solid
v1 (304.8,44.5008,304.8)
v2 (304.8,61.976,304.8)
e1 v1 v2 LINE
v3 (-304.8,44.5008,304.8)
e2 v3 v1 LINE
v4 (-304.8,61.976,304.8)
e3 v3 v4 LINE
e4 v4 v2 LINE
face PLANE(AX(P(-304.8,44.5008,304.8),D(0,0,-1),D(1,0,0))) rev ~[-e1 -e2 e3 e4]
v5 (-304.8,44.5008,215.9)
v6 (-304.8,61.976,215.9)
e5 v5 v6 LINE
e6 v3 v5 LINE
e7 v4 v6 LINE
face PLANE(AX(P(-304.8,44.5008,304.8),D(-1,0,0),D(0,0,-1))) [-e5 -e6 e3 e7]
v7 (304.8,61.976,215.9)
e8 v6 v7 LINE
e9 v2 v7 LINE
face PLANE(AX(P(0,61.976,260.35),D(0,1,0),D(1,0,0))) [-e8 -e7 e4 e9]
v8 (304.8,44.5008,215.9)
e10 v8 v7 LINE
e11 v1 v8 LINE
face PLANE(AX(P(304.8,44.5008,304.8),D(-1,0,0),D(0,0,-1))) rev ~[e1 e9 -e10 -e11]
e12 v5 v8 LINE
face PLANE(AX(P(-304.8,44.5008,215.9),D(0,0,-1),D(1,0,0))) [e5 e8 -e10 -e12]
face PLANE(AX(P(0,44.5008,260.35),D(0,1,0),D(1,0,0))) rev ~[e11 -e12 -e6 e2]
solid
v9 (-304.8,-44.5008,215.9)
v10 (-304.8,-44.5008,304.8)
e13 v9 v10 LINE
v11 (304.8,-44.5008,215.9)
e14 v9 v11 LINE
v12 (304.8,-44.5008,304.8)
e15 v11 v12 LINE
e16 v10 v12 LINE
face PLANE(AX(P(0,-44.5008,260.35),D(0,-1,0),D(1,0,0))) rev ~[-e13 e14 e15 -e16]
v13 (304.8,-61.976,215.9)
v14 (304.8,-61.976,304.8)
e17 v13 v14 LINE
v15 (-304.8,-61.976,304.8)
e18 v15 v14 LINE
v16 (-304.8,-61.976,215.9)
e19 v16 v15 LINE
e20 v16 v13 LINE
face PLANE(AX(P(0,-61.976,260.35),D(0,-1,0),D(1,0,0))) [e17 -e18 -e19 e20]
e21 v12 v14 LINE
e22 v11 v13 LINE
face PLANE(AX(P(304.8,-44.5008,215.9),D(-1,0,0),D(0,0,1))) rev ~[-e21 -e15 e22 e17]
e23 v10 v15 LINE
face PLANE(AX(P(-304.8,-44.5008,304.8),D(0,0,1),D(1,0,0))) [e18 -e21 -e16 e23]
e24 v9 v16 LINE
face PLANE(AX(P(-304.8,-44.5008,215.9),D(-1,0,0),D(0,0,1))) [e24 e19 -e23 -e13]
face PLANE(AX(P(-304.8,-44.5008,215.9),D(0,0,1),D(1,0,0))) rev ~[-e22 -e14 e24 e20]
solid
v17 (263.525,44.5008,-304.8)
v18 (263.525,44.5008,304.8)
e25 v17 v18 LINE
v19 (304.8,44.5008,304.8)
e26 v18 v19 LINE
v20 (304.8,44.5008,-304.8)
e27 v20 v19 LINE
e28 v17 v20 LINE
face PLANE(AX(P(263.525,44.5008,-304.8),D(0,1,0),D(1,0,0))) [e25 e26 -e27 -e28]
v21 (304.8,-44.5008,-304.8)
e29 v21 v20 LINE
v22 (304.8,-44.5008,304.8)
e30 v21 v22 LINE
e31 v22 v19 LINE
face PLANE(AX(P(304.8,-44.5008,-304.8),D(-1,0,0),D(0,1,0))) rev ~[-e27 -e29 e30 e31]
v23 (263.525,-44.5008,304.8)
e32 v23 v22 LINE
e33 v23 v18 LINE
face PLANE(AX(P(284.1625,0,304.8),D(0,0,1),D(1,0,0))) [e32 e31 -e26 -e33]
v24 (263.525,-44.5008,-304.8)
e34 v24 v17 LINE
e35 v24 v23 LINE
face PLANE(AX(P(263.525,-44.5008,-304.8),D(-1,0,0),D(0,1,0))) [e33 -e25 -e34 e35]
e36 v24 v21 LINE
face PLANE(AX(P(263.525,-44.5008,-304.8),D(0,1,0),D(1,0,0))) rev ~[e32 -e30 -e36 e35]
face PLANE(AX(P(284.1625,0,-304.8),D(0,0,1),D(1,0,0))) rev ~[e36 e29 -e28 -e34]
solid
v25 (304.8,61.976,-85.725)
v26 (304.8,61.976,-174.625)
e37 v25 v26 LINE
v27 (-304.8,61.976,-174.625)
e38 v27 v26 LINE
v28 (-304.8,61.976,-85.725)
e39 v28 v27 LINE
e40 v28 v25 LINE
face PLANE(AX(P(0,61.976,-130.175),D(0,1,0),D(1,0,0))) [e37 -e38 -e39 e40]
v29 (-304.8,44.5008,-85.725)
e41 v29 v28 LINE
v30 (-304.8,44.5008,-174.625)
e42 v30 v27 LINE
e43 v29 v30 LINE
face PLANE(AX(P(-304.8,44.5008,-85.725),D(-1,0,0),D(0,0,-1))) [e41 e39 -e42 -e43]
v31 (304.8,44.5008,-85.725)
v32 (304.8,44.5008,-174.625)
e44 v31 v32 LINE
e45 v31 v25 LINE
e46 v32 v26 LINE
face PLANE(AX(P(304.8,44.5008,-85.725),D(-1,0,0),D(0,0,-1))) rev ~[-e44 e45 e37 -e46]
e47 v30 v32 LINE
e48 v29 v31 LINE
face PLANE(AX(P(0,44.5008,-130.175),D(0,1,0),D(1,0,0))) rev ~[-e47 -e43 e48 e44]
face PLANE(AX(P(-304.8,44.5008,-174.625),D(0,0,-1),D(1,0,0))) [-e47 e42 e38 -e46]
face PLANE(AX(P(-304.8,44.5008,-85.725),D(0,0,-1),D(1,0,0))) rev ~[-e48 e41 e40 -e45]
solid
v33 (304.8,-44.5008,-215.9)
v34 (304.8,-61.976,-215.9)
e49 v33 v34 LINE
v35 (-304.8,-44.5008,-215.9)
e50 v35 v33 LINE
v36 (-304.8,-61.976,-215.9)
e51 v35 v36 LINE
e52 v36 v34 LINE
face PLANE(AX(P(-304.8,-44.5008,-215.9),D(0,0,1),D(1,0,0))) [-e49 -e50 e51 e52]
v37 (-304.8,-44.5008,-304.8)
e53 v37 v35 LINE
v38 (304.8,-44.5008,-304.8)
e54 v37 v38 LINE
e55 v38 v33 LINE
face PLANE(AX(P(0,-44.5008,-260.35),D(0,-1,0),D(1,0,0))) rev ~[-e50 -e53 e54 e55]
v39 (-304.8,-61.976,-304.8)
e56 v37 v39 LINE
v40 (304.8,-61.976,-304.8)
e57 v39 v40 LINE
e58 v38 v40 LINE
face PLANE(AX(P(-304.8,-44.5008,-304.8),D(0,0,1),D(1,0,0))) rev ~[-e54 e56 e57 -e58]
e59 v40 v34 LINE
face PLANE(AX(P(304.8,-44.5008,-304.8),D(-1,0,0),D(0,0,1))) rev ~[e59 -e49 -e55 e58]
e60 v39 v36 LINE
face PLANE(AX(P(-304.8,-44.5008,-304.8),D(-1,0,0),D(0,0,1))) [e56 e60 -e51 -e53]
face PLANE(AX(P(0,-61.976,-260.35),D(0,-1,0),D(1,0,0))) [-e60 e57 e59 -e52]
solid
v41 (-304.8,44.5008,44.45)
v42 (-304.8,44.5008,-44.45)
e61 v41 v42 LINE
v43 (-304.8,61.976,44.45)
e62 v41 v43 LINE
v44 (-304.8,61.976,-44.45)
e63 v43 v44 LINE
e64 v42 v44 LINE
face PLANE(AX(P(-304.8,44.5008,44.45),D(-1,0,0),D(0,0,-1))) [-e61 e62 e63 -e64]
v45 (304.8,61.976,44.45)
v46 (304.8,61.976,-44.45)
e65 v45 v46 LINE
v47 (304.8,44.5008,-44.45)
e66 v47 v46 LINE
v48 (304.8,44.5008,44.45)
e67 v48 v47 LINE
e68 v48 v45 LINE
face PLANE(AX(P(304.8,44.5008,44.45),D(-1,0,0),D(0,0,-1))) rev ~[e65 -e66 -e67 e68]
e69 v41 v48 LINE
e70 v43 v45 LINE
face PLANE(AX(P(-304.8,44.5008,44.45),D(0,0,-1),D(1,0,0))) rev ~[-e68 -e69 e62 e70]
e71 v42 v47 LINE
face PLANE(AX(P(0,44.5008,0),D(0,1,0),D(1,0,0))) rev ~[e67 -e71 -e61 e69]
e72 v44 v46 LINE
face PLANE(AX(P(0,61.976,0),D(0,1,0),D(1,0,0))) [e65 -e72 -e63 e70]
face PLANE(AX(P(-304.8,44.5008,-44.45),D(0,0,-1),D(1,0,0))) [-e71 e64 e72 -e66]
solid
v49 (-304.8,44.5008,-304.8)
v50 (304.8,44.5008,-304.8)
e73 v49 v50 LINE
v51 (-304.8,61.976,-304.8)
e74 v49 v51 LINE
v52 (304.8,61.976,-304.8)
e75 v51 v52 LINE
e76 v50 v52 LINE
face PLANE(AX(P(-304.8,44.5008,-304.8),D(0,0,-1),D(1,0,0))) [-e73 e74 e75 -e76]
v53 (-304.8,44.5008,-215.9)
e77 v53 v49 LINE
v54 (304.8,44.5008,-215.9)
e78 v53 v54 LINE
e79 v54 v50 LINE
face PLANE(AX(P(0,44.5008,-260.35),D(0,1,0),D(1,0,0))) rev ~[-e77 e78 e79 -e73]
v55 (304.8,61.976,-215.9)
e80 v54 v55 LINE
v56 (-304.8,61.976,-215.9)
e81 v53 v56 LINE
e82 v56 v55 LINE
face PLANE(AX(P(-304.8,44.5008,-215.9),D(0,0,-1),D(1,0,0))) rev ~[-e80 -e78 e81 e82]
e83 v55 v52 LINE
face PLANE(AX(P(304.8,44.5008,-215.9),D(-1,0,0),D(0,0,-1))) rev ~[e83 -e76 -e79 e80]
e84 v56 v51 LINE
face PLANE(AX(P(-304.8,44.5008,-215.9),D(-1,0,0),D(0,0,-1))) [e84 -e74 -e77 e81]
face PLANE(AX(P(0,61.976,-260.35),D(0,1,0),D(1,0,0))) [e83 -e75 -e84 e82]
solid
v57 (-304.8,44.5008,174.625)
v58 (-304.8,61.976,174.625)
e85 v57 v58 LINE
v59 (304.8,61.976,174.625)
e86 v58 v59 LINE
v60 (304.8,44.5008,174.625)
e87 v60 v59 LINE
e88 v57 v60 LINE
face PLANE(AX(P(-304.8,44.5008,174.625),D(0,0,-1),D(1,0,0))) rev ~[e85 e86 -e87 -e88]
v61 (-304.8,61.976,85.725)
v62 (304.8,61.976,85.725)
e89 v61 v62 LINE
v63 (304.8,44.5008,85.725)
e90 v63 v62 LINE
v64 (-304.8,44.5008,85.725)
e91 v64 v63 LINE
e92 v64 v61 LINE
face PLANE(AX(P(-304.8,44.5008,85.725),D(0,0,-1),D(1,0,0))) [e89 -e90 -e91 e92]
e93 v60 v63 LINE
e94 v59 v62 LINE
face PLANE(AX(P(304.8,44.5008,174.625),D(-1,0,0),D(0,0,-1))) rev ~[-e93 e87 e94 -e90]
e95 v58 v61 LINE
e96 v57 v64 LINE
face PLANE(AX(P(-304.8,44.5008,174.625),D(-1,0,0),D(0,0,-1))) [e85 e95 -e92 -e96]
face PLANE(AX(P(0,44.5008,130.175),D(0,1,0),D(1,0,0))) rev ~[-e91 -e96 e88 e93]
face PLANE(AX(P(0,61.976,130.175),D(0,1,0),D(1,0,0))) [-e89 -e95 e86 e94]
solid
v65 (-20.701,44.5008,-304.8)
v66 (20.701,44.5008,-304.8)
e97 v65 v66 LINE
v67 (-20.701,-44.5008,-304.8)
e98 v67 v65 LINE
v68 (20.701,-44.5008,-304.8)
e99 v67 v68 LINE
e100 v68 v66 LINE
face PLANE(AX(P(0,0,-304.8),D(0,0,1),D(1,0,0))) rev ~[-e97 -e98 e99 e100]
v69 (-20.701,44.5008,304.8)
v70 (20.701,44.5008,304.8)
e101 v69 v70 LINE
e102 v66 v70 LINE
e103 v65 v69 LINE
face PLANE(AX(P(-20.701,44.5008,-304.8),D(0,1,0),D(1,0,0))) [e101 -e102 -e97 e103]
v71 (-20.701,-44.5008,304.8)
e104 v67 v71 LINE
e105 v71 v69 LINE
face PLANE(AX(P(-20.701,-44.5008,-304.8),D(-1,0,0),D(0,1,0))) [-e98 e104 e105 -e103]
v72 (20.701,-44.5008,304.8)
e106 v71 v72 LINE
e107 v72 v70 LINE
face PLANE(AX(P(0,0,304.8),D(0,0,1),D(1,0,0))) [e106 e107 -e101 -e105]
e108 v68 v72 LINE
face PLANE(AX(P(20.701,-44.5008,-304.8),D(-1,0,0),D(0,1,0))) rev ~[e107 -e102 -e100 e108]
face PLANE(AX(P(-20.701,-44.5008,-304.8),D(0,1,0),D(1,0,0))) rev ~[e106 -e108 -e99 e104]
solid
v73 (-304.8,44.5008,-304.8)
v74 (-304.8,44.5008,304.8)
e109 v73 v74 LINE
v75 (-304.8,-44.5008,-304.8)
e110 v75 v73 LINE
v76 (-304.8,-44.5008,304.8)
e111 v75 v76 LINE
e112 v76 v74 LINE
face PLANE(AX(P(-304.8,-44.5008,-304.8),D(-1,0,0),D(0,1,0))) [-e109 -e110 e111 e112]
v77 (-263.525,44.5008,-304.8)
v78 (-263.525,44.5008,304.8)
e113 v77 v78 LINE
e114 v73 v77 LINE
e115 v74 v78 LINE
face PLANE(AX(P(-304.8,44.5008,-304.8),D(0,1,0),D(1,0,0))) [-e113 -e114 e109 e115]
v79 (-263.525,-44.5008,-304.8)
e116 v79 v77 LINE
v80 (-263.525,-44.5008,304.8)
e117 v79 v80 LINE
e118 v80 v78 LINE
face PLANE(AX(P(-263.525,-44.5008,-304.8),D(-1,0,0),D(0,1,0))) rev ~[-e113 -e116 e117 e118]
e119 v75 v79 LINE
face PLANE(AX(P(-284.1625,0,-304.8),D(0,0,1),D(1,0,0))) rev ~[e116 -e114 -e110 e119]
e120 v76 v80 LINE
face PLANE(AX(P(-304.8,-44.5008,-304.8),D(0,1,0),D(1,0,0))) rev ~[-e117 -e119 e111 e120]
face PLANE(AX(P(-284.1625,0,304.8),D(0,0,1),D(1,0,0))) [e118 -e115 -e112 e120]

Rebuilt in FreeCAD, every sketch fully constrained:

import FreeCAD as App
import Part
import Sketcher
from FreeCAD import Vector
Q = App.Units.Quantity


def add_polygon(sketch, points):
    """Adds a closed chain of lines whose ends are joined by coincident constraints."""
    first, n = sketch.GeometryCount, len(points)
    for a, b in zip(points, points[1:] + points[:1]):
        sketch.addGeometry(Part.LineSegment(App.Vector(*a, 0), App.Vector(*b, 0)), False)
    for i in range(n):
        sketch.addConstraint(Sketcher.Constraint("Coincident", first + i, 2, first + (i + 1) % n, 1))

doc = App.newDocument("Part")
body = doc.addObject("PartDesign::Body", "Body")

sketch1 = body.newObject("Sketcher::SketchObject", "Sketch")
sketch1.AttachmentSupport = (doc.getObject("XY_Plane"), [""])
sketch1.MapMode = "FlatFace"
add_polygon(sketch1, [(-305, 45), (-305, -45), (-264, -45), (-264, 45)])
sketch1.addConstraint([
    Sketcher.Constraint("Vertical", 0),
    Sketcher.Constraint("Horizontal", 1),
    Sketcher.Constraint("Vertical", 2),
    Sketcher.Constraint("Horizontal", 3),
    Sketcher.Constraint("DistanceX", 0, 2, -1, 1, Q("12 in")),
    Sketcher.Constraint("DistanceX", 1, 1, 1, 2, Q("1.625 in")),
    Sketcher.Constraint("DistanceY", 0, 2, 0, 1, Q("3.504 in")),
    Sketcher.Constraint("DistanceY", 0, 2, -1, 1, Q("1.752 in")),
])
pad1 = body.newObject("PartDesign::Pad", "Pad")
pad1.Profile = sketch1
pad1.Type = "TwoLengths"
pad1.Length = Q("12 in")
pad1.Length2 = Q("12 in")
body2 = doc.addObject("PartDesign::Body", "Body001")

sketch2 = body2.newObject("Sketcher::SketchObject", "Sketch001")
sketch2.AttachmentSupport = (doc.getObject("XY_Plane001"), [""])
sketch2.MapMode = "FlatFace"
add_polygon(sketch2, [(-21, 45), (-21, -45), (21, -45), (21, 45)])
sketch2.addConstraint([
    Sketcher.Constraint("Vertical", 0),
    Sketcher.Constraint("Horizontal", 1),
    Sketcher.Constraint("Vertical", 2),
    Sketcher.Constraint("Horizontal", 3),
    Sketcher.Constraint("Symmetric", 0, 2, 2, 2, -1, 1),
    Sketcher.Constraint("DistanceX", 1, 1, 1, 2, Q("1.63 in")),
    Sketcher.Constraint("DistanceY", 0, 2, 0, 1, Q("3.504 in")),
])
pad2 = body2.newObject("PartDesign::Pad", "Pad001")
pad2.Profile = sketch2
pad2.Type = "TwoLengths"
pad2.Length = Q("12 in")
pad2.Length2 = Q("12 in")
body3 = doc.addObject("PartDesign::Body", "Body002")

sketch3 = body3.newObject("Sketcher::SketchObject", "Sketch002")
sketch3.AttachmentSupport = (doc.getObject("XY_Plane002"), [""])
sketch3.MapMode = "FlatFace"
add_polygon(sketch3, [(264, 45), (264, -45), (305, -45), (305, 45)])
sketch3.addConstraint([
    Sketcher.Constraint("Vertical", 0),
    Sketcher.Constraint("Horizontal", 1),
    Sketcher.Constraint("Vertical", 2),
    Sketcher.Constraint("Horizontal", 3),
    Sketcher.Constraint("DistanceX", -1, 1, 1, 2, Q("12 in")),
    Sketcher.Constraint("DistanceX", 1, 1, 1, 2, Q("1.625 in")),
    Sketcher.Constraint("DistanceY", 0, 2, 0, 1, Q("3.504 in")),
    Sketcher.Constraint("DistanceY", 0, 2, -1, 1, Q("1.752 in")),
])
pad3 = body3.newObject("PartDesign::Pad", "Pad002")
pad3.Profile = sketch3
pad3.Type = "TwoLengths"
pad3.Length = Q("12 in")
pad3.Length2 = Q("12 in")
body4 = doc.addObject("PartDesign::Body", "Body003")

sketch4 = body4.newObject("Sketcher::SketchObject", "Sketch003")
sketch4.AttachmentSupport = (doc.getObject("XZ_Plane003"), [""])
sketch4.MapMode = "FlatFace"
sketch4.AttachmentOffset = App.Placement(Vector(0, 0, -1.752 * 25.4), App.Rotation())
add_polygon(sketch4, [(-305, 216), (-305, 305), (305, 305), (305, 216)])
sketch4.addConstraint([
    Sketcher.Constraint("Vertical", 0),
    Sketcher.Constraint("Horizontal", 1),
    Sketcher.Constraint("Vertical", 2),
    Sketcher.Constraint("Horizontal", 3),
    Sketcher.Constraint("DistanceX", 1, 1, 1, 2, Q("24 in")),
    Sketcher.Constraint("DistanceY", 0, 1, 0, 2, Q("3.5 in")),
    Sketcher.Constraint("DistanceX", 0, 2, -1, 1, Q("12 in")),
    Sketcher.Constraint("DistanceY", -1, 1, 0, 2, Q("12 in")),
])
pad4 = body4.newObject("PartDesign::Pad", "Pad003")
pad4.Profile = sketch4
pad4.Length = Q("0.688 in")
pad4.Reversed = True
body5 = doc.addObject("PartDesign::Body", "Body004")

sketch5 = body5.newObject("Sketcher::SketchObject", "Sketch004")
sketch5.AttachmentSupport = (doc.getObject("XZ_Plane004"), [""])
sketch5.MapMode = "FlatFace"
sketch5.AttachmentOffset = App.Placement(Vector(0, 0, -1.752 * 25.4), App.Rotation())
add_polygon(sketch5, [(-305, 86), (-305, 175), (305, 175), (305, 86)])
sketch5.addConstraint([
    Sketcher.Constraint("Vertical", 0),
    Sketcher.Constraint("Horizontal", 1),
    Sketcher.Constraint("Vertical", 2),
    Sketcher.Constraint("Horizontal", 3),
    Sketcher.Constraint("DistanceX", 1, 1, 1, 2, Q("24 in")),
    Sketcher.Constraint("DistanceY", 0, 1, 0, 2, Q("3.5 in")),
    Sketcher.Constraint("DistanceX", 0, 2, -1, 1, Q("12 in")),
    Sketcher.Constraint("DistanceY", -1, 1, 0, 2, Q("6.875 in")),
])
pad5 = body5.newObject("PartDesign::Pad", "Pad004")
pad5.Profile = sketch5
pad5.Length = Q("0.688 in")
pad5.Reversed = True
body6 = doc.addObject("PartDesign::Body", "Body005")

sketch6 = body6.newObject("Sketcher::SketchObject", "Sketch005")
sketch6.AttachmentSupport = (doc.getObject("XZ_Plane005"), [""])
sketch6.MapMode = "FlatFace"
sketch6.AttachmentOffset = App.Placement(Vector(0, 0, -1.752 * 25.4), App.Rotation())
add_polygon(sketch6, [(-305, -44), (-305, 44), (305, 44), (305, -44)])
sketch6.addConstraint([
    Sketcher.Constraint("Vertical", 0),
    Sketcher.Constraint("Horizontal", 1),
    Sketcher.Constraint("Vertical", 2),
    Sketcher.Constraint("Horizontal", 3),
    Sketcher.Constraint("Symmetric", 0, 2, 2, 2, -1, 1),
    Sketcher.Constraint("DistanceX", 1, 1, 1, 2, Q("24 in")),
    Sketcher.Constraint("DistanceY", 0, 1, 0, 2, Q("3.5 in")),
])
pad6 = body6.newObject("PartDesign::Pad", "Pad005")
pad6.Profile = sketch6
pad6.Length = Q("0.688 in")
pad6.Reversed = True
body7 = doc.addObject("PartDesign::Body", "Body006")

sketch7 = body7.newObject("Sketcher::SketchObject", "Sketch006")
sketch7.AttachmentSupport = (doc.getObject("XZ_Plane006"), [""])
sketch7.MapMode = "FlatFace"
sketch7.AttachmentOffset = App.Placement(Vector(0, 0, -1.752 * 25.4), App.Rotation())
add_polygon(sketch7, [(-305, -175), (-305, -86), (305, -86), (305, -175)])
sketch7.addConstraint([
    Sketcher.Constraint("Vertical", 0),
    Sketcher.Constraint("Horizontal", 1),
    Sketcher.Constraint("Vertical", 2),
    Sketcher.Constraint("Horizontal", 3),
    Sketcher.Constraint("DistanceX", 1, 1, 1, 2, Q("24 in")),
    Sketcher.Constraint("DistanceY", 0, 1, 0, 2, Q("3.5 in")),
    Sketcher.Constraint("DistanceX", 0, 2, -1, 1, Q("12 in")),
    Sketcher.Constraint("DistanceY", 0, 2, -1, 1, Q("3.375 in")),
])
pad7 = body7.newObject("PartDesign::Pad", "Pad006")
pad7.Profile = sketch7
pad7.Length = Q("0.688 in")
pad7.Reversed = True
body8 = doc.addObject("PartDesign::Body", "Body007")

sketch8 = body8.newObject("Sketcher::SketchObject", "Sketch007")
sketch8.AttachmentSupport = (doc.getObject("XZ_Plane007"), [""])
sketch8.MapMode = "FlatFace"
sketch8.AttachmentOffset = App.Placement(Vector(0, 0, -1.752 * 25.4), App.Rotation())
add_polygon(sketch8, [(-305, -305), (-305, -216), (305, -216), (305, -305)])
sketch8.addConstraint([
    Sketcher.Constraint("Vertical", 0),
    Sketcher.Constraint("Horizontal", 1),
    Sketcher.Constraint("Vertical", 2),
    Sketcher.Constraint("Horizontal", 3),
    Sketcher.Constraint("DistanceX", 1, 1, 1, 2, Q("24 in")),
    Sketcher.Constraint("DistanceY", 0, 1, 0, 2, Q("3.5 in")),
    Sketcher.Constraint("DistanceX", 0, 2, -1, 1, Q("12 in")),
    Sketcher.Constraint("DistanceY", 2, 2, -1, 1, Q("12 in")),
])
pad8 = body8.newObject("PartDesign::Pad", "Pad007")
pad8.Profile = sketch8
pad8.Length = Q("0.688 in")
pad8.Reversed = True
body9 = doc.addObject("PartDesign::Body", "Body008")

sketch9 = body9.newObject("Sketcher::SketchObject", "Sketch008")
sketch9.AttachmentSupport = (doc.getObject("XZ_Plane008"), [""])
sketch9.MapMode = "FlatFace"
sketch9.AttachmentOffset = App.Placement(Vector(0, 0, 1.752 * 25.4), App.Rotation())
add_polygon(sketch9, [(-305, 305), (-305, 216), (305, 216), (305, 305)])
sketch9.addConstraint([
    Sketcher.Constraint("Vertical", 0),
    Sketcher.Constraint("Horizontal", 1),
    Sketcher.Constraint("Vertical", 2),
    Sketcher.Constraint("Horizontal", 3),
    Sketcher.Constraint("DistanceX", 1, 1, 1, 2, Q("24 in")),
    Sketcher.Constraint("DistanceY", 0, 2, 0, 1, Q("3.5 in")),
    Sketcher.Constraint("DistanceX", 0, 2, -1, 1, Q("12 in")),
    Sketcher.Constraint("DistanceY", -1, 1, 2, 2, Q("12 in")),
])
pad9 = body9.newObject("PartDesign::Pad", "Pad008")
pad9.Profile = sketch9
pad9.Length = Q("0.688 in")
body10 = doc.addObject("PartDesign::Body", "Body009")

sketch10 = body10.newObject("Sketcher::SketchObject", "Sketch009")
sketch10.AttachmentSupport = (doc.getObject("XZ_Plane009"), [""])
sketch10.MapMode = "FlatFace"
sketch10.AttachmentOffset = App.Placement(Vector(0, 0, 1.752 * 25.4), App.Rotation())
add_polygon(sketch10, [(-305, -216), (-305, -305), (305, -305), (305, -216)])
sketch10.addConstraint([
    Sketcher.Constraint("Vertical", 0),
    Sketcher.Constraint("Horizontal", 1),
    Sketcher.Constraint("Vertical", 2),
    Sketcher.Constraint("Horizontal", 3),
    Sketcher.Constraint("DistanceX", 1, 1, 1, 2, Q("24 in")),
    Sketcher.Constraint("DistanceY", 0, 2, 0, 1, Q("3.5 in")),
    Sketcher.Constraint("DistanceX", 0, 2, -1, 1, Q("12 in")),
    Sketcher.Constraint("DistanceY", 0, 2, -1, 1, Q("12 in")),
])
pad10 = body10.newObject("PartDesign::Pad", "Pad009")
pad10.Profile = sketch10
pad10.Length = Q("0.688 in")

doc.recompute()
